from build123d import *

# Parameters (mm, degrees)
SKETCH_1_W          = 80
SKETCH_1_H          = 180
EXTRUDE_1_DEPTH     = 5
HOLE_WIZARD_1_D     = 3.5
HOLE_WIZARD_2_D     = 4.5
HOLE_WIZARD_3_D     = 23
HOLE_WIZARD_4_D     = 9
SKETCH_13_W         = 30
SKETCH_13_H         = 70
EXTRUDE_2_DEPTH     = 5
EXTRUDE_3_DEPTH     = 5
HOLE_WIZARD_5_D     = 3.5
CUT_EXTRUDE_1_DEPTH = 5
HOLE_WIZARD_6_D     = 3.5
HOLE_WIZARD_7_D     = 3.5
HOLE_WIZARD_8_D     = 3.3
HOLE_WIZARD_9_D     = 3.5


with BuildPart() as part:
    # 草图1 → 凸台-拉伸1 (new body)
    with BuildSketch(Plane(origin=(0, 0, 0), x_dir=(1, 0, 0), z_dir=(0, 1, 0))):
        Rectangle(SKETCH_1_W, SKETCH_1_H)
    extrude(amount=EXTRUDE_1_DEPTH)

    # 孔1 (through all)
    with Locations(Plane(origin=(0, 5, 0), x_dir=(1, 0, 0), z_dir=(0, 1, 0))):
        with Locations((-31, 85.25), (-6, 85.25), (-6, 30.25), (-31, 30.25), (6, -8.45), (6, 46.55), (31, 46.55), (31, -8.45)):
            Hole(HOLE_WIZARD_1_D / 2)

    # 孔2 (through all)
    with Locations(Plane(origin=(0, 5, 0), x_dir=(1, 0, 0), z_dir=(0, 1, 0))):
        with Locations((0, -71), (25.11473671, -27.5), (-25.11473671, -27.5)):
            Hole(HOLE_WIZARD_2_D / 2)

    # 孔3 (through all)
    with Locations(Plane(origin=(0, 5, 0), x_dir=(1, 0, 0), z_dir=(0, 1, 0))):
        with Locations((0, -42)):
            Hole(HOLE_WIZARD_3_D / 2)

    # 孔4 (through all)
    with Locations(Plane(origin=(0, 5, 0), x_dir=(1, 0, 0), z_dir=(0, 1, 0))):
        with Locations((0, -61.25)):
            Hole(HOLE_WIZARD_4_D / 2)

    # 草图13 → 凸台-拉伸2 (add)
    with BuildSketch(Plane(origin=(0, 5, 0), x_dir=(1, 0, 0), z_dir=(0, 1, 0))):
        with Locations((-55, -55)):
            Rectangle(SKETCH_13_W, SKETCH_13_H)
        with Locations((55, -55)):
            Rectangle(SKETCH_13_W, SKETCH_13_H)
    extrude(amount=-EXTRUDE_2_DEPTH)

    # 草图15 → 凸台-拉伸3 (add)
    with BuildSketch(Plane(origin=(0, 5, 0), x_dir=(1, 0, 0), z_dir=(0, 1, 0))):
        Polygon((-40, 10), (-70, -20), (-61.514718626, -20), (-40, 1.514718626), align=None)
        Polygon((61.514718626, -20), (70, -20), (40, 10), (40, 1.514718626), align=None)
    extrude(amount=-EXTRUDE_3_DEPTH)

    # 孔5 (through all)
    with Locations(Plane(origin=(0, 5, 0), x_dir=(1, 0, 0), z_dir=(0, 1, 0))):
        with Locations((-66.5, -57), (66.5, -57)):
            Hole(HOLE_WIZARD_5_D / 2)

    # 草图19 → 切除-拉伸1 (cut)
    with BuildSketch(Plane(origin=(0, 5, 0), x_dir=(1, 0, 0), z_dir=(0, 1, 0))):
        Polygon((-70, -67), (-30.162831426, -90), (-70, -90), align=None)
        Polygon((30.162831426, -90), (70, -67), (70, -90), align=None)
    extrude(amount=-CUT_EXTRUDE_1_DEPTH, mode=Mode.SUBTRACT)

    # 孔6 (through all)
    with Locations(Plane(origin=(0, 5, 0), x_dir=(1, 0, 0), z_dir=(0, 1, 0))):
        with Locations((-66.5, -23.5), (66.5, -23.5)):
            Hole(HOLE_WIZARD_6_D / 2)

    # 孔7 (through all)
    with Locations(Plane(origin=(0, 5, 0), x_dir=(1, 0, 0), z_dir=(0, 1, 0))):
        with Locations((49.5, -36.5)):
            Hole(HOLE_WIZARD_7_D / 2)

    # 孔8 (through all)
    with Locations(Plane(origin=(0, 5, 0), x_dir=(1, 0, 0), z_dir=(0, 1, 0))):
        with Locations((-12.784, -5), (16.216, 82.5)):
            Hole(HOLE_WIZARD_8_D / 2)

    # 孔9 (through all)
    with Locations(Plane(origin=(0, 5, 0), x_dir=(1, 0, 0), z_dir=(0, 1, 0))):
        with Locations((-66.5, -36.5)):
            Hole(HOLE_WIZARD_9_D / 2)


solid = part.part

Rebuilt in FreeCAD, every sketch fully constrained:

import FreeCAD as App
import Part
import Sketcher

V = App.Vector
Q = App.Units.Quantity

doc = App.newDocument("Part")
params = doc.addObject("Spreadsheet::Sheet", "Params")
for row, (alias, value) in enumerate([
    ("sketch1_width", "80 mm"),
    ("sketch1_height", "180 mm"),
    ("pad1_length", "5 mm"),
    ("sketch2_diameter", "3.5 mm"),
    ("hole_diameter", "3.5 mm"),
    ("sketch3_diameter", "4.5 mm"),
    ("hole2_diameter", "4.5 mm"),
    ("sketch4_diameter", "23 mm"),
    ("hole3_diameter", "23 mm"),
    ("sketch5_diameter", "9 mm"),
    ("hole4_diameter", "9 mm"),
    ("sketch6_width", "30 mm"),
    ("sketch6_height", "70 mm"),
    ("pad2_length", "5 mm"),
    ("pad3_length", "5 mm"),
    ("sketch8_diameter", "3.5 mm"),
    ("hole5_diameter", "3.5 mm"),
    ("sketch9_height", "23 mm"),
    ("pocket1_length", "5 mm"),
    ("sketch10_diameter", "3.5 mm"),
    ("hole6_diameter", "3.5 mm"),
    ("sketch11_diameter", "3.5 mm"),
    ("hole7_diameter", "3.5 mm"),
    ("sketch12_diameter", "3.3 mm"),
    ("hole8_diameter", "3.3 mm"),
    ("sketch13_diameter", "3.5 mm"),
    ("hole9_diameter", "3.5 mm"),
], start=1):
    params.set(f"A{row}", alias)
    params.set(f"B{row}", "=" + value)
    params.setAlias(f"B{row}", alias)

body = doc.addObject("PartDesign::Body", "Body")

sketch1 = body.newObject("Sketcher::SketchObject", "Sketch")
sketch1.AttachmentSupport = (doc.getObject("XZ_Plane"), [""])
sketch1.MapMode = "FlatFace"
sketch1.addGeometry([
    Part.LineSegment(V(-40, -90, 0), V(-40, 90, 0)),
    Part.LineSegment(V(-40, 90, 0), V(40, 90, 0)),
    Part.LineSegment(V(40, 90, 0), V(40, -90, 0)),
    Part.LineSegment(V(40, -90, 0), V(-40, -90, 0)),
], False)
sketch1.addConstraint([
    Sketcher.Constraint("Coincident", 0, 2, 1, 1),
    Sketcher.Constraint("Coincident", 1, 2, 2, 1),
    Sketcher.Constraint("Coincident", 2, 2, 3, 1),
    Sketcher.Constraint("Coincident", 3, 2, 0, 1),
    Sketcher.Constraint("Vertical", 0),
    Sketcher.Constraint("Horizontal", 1),
    Sketcher.Constraint("Vertical", 2),
    Sketcher.Constraint("Horizontal", 3),
    Sketcher.Constraint("Symmetric", 0, 2, 2, 2, -1, 1),
    Sketcher.Constraint("DistanceX", 1, 1, 1, 2, Q("80 mm")),
    Sketcher.Constraint("DistanceY", 0, 1, 0, 2, Q("180 mm")),
])
sketch1.setExpression("Constraints[9]", "Params.sketch1_width")
sketch1.setExpression("Constraints[10]", "Params.sketch1_height")
pad1 = body.newObject("PartDesign::Pad", "Pad")
pad1.Profile = sketch1
pad1.setExpression("Length", "Params.pad1_length")
pad1.Reversed = True

sketch2 = body.newObject("Sketcher::SketchObject", "Sketch001")
sketch2.AttachmentSupport = (doc.getObject("XZ_Plane"), [""])
sketch2.MapMode = "FlatFace"
sketch2.AttachmentOffset = App.Placement(V(0, 0, -5), App.Rotation())
sketch2.addGeometry([
    Part.Circle(V(-31, -85.2, 0), V(0, 0, 1), 1.8),
    Part.Circle(V(-6, -85.2, 0), V(0, 0, 1), 1.8),
    Part.Circle(V(-6, -30.2, 0), V(0, 0, 1), 1.8),
    Part.Circle(V(-31, -30.2, 0), V(0, 0, 1), 1.8),
    Part.Circle(V(6, 8.4, 0), V(0, 0, 1), 1.8),
    Part.Circle(V(6, -46.5, 0), V(0, 0, 1), 1.8),
    Part.Circle(V(31, -46.5, 0), V(0, 0, 1), 1.8),
    Part.Circle(V(31, 8.4, 0), V(0, 0, 1), 1.8),
], False)
sketch2.addConstraint([
    Sketcher.Constraint("Equal", 0, 1),
    Sketcher.Constraint("Equal", 1, 2),
    Sketcher.Constraint("Equal", 2, 3),
    Sketcher.Constraint("Equal", 3, 4),
    Sketcher.Constraint("Equal", 4, 5),
    Sketcher.Constraint("Equal", 5, 6),
    Sketcher.Constraint("Equal", 6, 7),
    Sketcher.Constraint("Horizontal", 0, 3, 1, 3),
    Sketcher.Constraint("Horizontal", 2, 3, 3, 3),
    Sketcher.Constraint("Horizontal", 5, 3, 6, 3),
    Sketcher.Constraint("Horizontal", 4, 3, 7, 3),
    Sketcher.Constraint("Vertical", 1, 3, 2, 3),
    Sketcher.Constraint("Vertical", 0, 3, 3, 3),
    Sketcher.Constraint("Vertical", 4, 3, 5, 3),
    Sketcher.Constraint("Vertical", 6, 3, 7, 3),
    Sketcher.Constraint("Diameter", 0, Q("3.5 mm")),
    Sketcher.Constraint("DistanceX", 0, 3, -1, 1, Q("31 mm")),
    Sketcher.Constraint("DistanceX", 1, 3, -1, 1, Q("6 mm")),
    Sketcher.Constraint("DistanceX", -1, 1, 4, 3, Q("6 mm")),
    Sketcher.Constraint("DistanceX", -1, 1, 6, 3, Q("31 mm")),
    Sketcher.Constraint("DistanceY", 1, 3, 2, 3, Q("55 mm")),
    Sketcher.Constraint("DistanceY", 5, 3, 4, 3, Q("55 mm")),
    Sketcher.Constraint("DistanceY", 2, 3, 4, 3, Q("38.7 mm")),
    Sketcher.Constraint("DistanceY", 0, 3, -1, 1, Q("85.25 mm")),
])
sketch2.setExpression("Constraints[15]", "Params.sketch2_diameter")
doc.recompute()
hole = body.newObject("PartDesign::Hole", "Hole")
hole.Profile = sketch2
hole.ThreadType = "None"
hole.setExpression("Diameter", "Params.hole_diameter")
hole.DepthType = "ThroughAll"
hole.Reversed = True

sketch3 = body.newObject("Sketcher::SketchObject", "Sketch002")
sketch3.AttachmentSupport = (doc.getObject("XZ_Plane"), [""])
sketch3.MapMode = "FlatFace"
sketch3.AttachmentOffset = App.Placement(V(0, 0, -5), App.Rotation())
sketch3.addGeometry([
    Part.Circle(V(0, 71, 0), V(0, 0, 1), 2.2),
    Part.Circle(V(25.1, 27.5, 0), V(0, 0, 1), 2.2),
    Part.Circle(V(-25.1, 27.5, 0), V(0, 0, 1), 2.2),
], False)
sketch3.addConstraint([
    Sketcher.Constraint("Equal", 0, 1),
    Sketcher.Constraint("Equal", 1, 2),
    Sketcher.Constraint("Symmetric", 1, 3, 2, 3, -2),
    Sketcher.Constraint("PointOnObject", 0, 3, -2),
    Sketcher.Constraint("Diameter", 0, Q("4.5 mm")),
    Sketcher.Constraint("DistanceY", -1, 1, 0, 3, Q("71 mm")),
    Sketcher.Constraint("DistanceY", -1, 1, 1, 3, Q("27.5 mm")),
    Sketcher.Constraint("DistanceX", -1, 1, 1, 3, Q("25.114737 mm")),
])
sketch3.setExpression("Constraints[4]", "Params.sketch3_diameter")
doc.recompute()
hole2 = body.newObject("PartDesign::Hole", "Hole001")
hole2.Profile = sketch3
hole2.ThreadType = "None"
hole2.setExpression("Diameter", "Params.hole2_diameter")
hole2.DepthType = "ThroughAll"
hole2.Reversed = True

sketch4 = body.newObject("Sketcher::SketchObject", "Sketch003")
sketch4.AttachmentSupport = (doc.getObject("XZ_Plane"), [""])
sketch4.MapMode = "FlatFace"
sketch4.AttachmentOffset = App.Placement(V(0, 0, -5), App.Rotation())
sketch4.addGeometry(Part.Circle(V(0, 42, 0), V(0, 0, 1), 12), False)
sketch4.addConstraint([
    Sketcher.Constraint("PointOnObject", 0, 3, -2),
    Sketcher.Constraint("Diameter", 0, Q("23 mm")),
    Sketcher.Constraint("DistanceY", -1, 1, 0, 3, Q("42 mm")),
])
sketch4.setExpression("Constraints[1]", "Params.sketch4_diameter")
doc.recompute()
hole3 = body.newObject("PartDesign::Hole", "Hole002")
hole3.Profile = sketch4
hole3.ThreadType = "None"
hole3.setExpression("Diameter", "Params.hole3_diameter")
hole3.DepthType = "ThroughAll"
hole3.Reversed = True

sketch5 = body.newObject("Sketcher::SketchObject", "Sketch004")
sketch5.AttachmentSupport = (doc.getObject("XZ_Plane"), [""])
sketch5.MapMode = "FlatFace"
sketch5.AttachmentOffset = App.Placement(V(0, 0, -5), App.Rotation())
sketch5.addGeometry(Part.Circle(V(0, 61.2, 0), V(0, 0, 1), 4.5), False)
sketch5.addConstraint([
    Sketcher.Constraint("PointOnObject", 0, 3, -2),
    Sketcher.Constraint("Diameter", 0, Q("9 mm")),
    Sketcher.Constraint("DistanceY", -1, 1, 0, 3, Q("61.25 mm")),
])
sketch5.setExpression("Constraints[1]", "Params.sketch5_diameter")
doc.recompute()
hole4 = body.newObject("PartDesign::Hole", "Hole003")
hole4.Profile = sketch5
hole4.ThreadType = "None"
hole4.setExpression("Diameter", "Params.hole4_diameter")
hole4.DepthType = "ThroughAll"
hole4.Reversed = True

sketch6 = body.newObject("Sketcher::SketchObject", "Sketch005")
sketch6.AttachmentSupport = (doc.getObject("XZ_Plane"), [""])
sketch6.MapMode = "FlatFace"
sketch6.AttachmentOffset = App.Placement(V(0, 0, -5), App.Rotation())
sketch6.addGeometry([
    Part.LineSegment(V(-70, 20, 0), V(-70, 90, 0)),
    Part.LineSegment(V(-70, 90, 0), V(-40, 90, 0)),
    Part.LineSegment(V(-40, 90, 0), V(-40, 20, 0)),
    Part.LineSegment(V(-40, 20, 0), V(-70, 20, 0)),
    Part.LineSegment(V(40, 20, 0), V(40, 90, 0)),
    Part.LineSegment(V(40, 90, 0), V(70, 90, 0)),
    Part.LineSegment(V(70, 90, 0), V(70, 20, 0)),
    Part.LineSegment(V(70, 20, 0), V(40, 20, 0)),
], False)
sketch6.addConstraint([
    Sketcher.Constraint("Coincident", 0, 2, 1, 1),
    Sketcher.Constraint("Coincident", 1, 2, 2, 1),
    Sketcher.Constraint("Coincident", 2, 2, 3, 1),
    Sketcher.Constraint("Coincident", 3, 2, 0, 1),
    Sketcher.Constraint("Coincident", 4, 2, 5, 1),
    Sketcher.Constraint("Coincident", 5, 2, 6, 1),
    Sketcher.Constraint("Coincident", 6, 2, 7, 1),
    Sketcher.Constraint("Coincident", 7, 2, 4, 1),
    Sketcher.Constraint("Vertical", 0),
    Sketcher.Constraint("Horizontal", 1),
    Sketcher.Constraint("Vertical", 2),
    Sketcher.Constraint("Horizontal", 3),
    Sketcher.Constraint("Vertical", 4),
    Sketcher.Constraint("Horizontal", 5),
    Sketcher.Constraint("Vertical", 6),
    Sketcher.Constraint("Horizontal", 7),
    Sketcher.Constraint("Symmetric", 1, 2, 4, 2, -2),
    Sketcher.Constraint("Symmetric", 3, 2, 6, 2, -2),
    Sketcher.Constraint("DistanceX", 1, 1, 1, 2, Q("30 mm")),
    Sketcher.Constraint("DistanceY", 0, 1, 0, 2, Q("70 mm")),
    Sketcher.Constraint("DistanceX", 0, 2, -1, 1, Q("70 mm")),
    Sketcher.Constraint("DistanceY", -1, 1, 0, 2, Q("90 mm")),
])
sketch6.setExpression("Constraints[18]", "Params.sketch6_width")
sketch6.setExpression("Constraints[19]", "Params.sketch6_height")
pad2 = body.newObject("PartDesign::Pad", "Pad001")
pad2.Profile = sketch6
pad2.setExpression("Length", "Params.pad2_length")

sketch7 = body.newObject("Sketcher::SketchObject", "Sketch006")
sketch7.AttachmentSupport = (doc.getObject("XZ_Plane"), [""])
sketch7.MapMode = "FlatFace"
sketch7.AttachmentOffset = App.Placement(V(0, 0, -5), App.Rotation())
sketch7.addGeometry([
    Part.LineSegment(V(-40, -10, 0), V(-70, 20, 0)),
    Part.LineSegment(V(-70, 20, 0), V(-62, 20, 0)),
    Part.LineSegment(V(-62, 20, 0), V(-40, -2, 0)),
    Part.LineSegment(V(-40, -2, 0), V(-40, -10, 0)),
    Part.LineSegment(V(62, 20, 0), V(70, 20, 0)),
    Part.LineSegment(V(70, 20, 0), V(40, -10, 0)),
    Part.LineSegment(V(40, -10, 0), V(40, -2, 0)),
    Part.LineSegment(V(40, -2, 0), V(62, 20, 0)),
], False)
sketch7.addConstraint([
    Sketcher.Constraint("Coincident", 0, 2, 1, 1),
    Sketcher.Constraint("Coincident", 1, 2, 2, 1),
    Sketcher.Constraint("Coincident", 2, 2, 3, 1),
    Sketcher.Constraint("Coincident", 3, 2, 0, 1),
    Sketcher.Constraint("Coincident", 4, 2, 5, 1),
    Sketcher.Constraint("Coincident", 5, 2, 6, 1),
    Sketcher.Constraint("Coincident", 6, 2, 7, 1),
    Sketcher.Constraint("Coincident", 7, 2, 4, 1),
    Sketcher.Constraint("Horizontal", 1),
    Sketcher.Constraint("Vertical", 3),
    Sketcher.Constraint("Horizontal", 4),
    Sketcher.Constraint("Vertical", 6),
    Sketcher.Constraint("Symmetric", 0, 2, 4, 2, -2),
    Sketcher.Constraint("Symmetric", 3, 2, 5, 2, -2),
    Sketcher.Constraint("Parallel", 0, 2),
    Sketcher.Constraint("Perpendicular", 2, 5),
    Sketcher.Constraint("Parallel", 5, 7),
    Sketcher.Constraint("Horizontal", 2, 2, 6, 2),
    Sketcher.Constraint("DistanceX", 0, 2, -1, 1, Q("70 mm")),
    Sketcher.Constraint("DistanceY", -1, 1, 0, 2, Q("20 mm")),
    Sketcher.Constraint("DistanceX", 2, 2, -1, 1, Q("40 mm")),
    Sketcher.Constraint("DistanceX", 1, 1, 1, 2, Q("8.485281 mm")),
])
pad3 = body.newObject("PartDesign::Pad", "Pad002")
pad3.Profile = sketch7
pad3.setExpression("Length", "Params.pad3_length")

sketch8 = body.newObject("Sketcher::SketchObject", "Sketch007")
sketch8.AttachmentSupport = (doc.getObject("XZ_Plane"), [""])
sketch8.MapMode = "FlatFace"
sketch8.AttachmentOffset = App.Placement(V(0, 0, -5), App.Rotation())
sketch8.addGeometry([
    Part.Circle(V(-66.5, 57, 0), V(0, 0, 1), 1.8),
    Part.Circle(V(66.5, 57, 0), V(0, 0, 1), 1.8),
], False)
sketch8.addConstraint([
    Sketcher.Constraint("Equal", 0, 1),
    Sketcher.Constraint("Symmetric", 0, 3, 1, 3, -2),
    Sketcher.Constraint("Diameter", 0, Q("3.5 mm")),
    Sketcher.Constraint("DistanceY", -1, 1, 0, 3, Q("57 mm")),
    Sketcher.Constraint("DistanceX", 0, 3, 1, 3, Q("133 mm")),
])
sketch8.setExpression("Constraints[2]", "Params.sketch8_diameter")
doc.recompute()
hole5 = body.newObject("PartDesign::Hole", "Hole004")
hole5.Profile = sketch8
hole5.ThreadType = "None"
hole5.setExpression("Diameter", "Params.hole5_diameter")
hole5.DepthType = "ThroughAll"
hole5.Reversed = True

sketch9 = body.newObject("Sketcher::SketchObject", "Sketch008")
sketch9.AttachmentSupport = (doc.getObject("XZ_Plane"), [""])
sketch9.MapMode = "FlatFace"
sketch9.AttachmentOffset = App.Placement(V(0, 0, -5), App.Rotation())
sketch9.addGeometry([
    Part.LineSegment(V(-30, 90, 0), V(-70, 67, 0)),
    Part.LineSegment(V(-70, 67, 0), V(-70, 90, 0)),
    Part.LineSegment(V(-70, 90, 0), V(-30, 90, 0)),
    Part.LineSegment(V(70, 67, 0), V(30, 90, 0)),
    Part.LineSegment(V(30, 90, 0), V(70, 90, 0)),
    Part.LineSegment(V(70, 90, 0), V(70, 67, 0)),
], False)
sketch9.addConstraint([
    Sketcher.Constraint("Coincident", 0, 2, 1, 1),
    Sketcher.Constraint("Coincident", 1, 2, 2, 1),
    Sketcher.Constraint("Coincident", 2, 2, 0, 1),
    Sketcher.Constraint("Coincident", 3, 2, 4, 1),
    Sketcher.Constraint("Coincident", 4, 2, 5, 1),
    Sketcher.Constraint("Coincident", 5, 2, 3, 1),
    Sketcher.Constraint("Vertical", 1),
    Sketcher.Constraint("Horizontal", 2),
    Sketcher.Constraint("Horizontal", 4),
    Sketcher.Constraint("Vertical", 5),
    Sketcher.Constraint("Symmetric", 2, 2, 3, 2, -2),
    Sketcher.Constraint("Symmetric", 0, 2, 5, 2, -2),
    Sketcher.Constraint("DistanceY", 1, 1, 1, 2, Q("23 mm")),
    Sketcher.Constraint("Angle", 0, Q("-150 deg")),
    Sketcher.Constraint("DistanceX", 0, 2, -1, 1, Q("70 mm")),
    Sketcher.Constraint("DistanceY", -1, 1, 0, 2, Q("67 mm")),
])
sketch9.setExpression("Constraints[12]", "Params.sketch9_height")
pocket1 = body.newObject("PartDesign::Pocket", "Pocket")
pocket1.Profile = sketch9
pocket1.setExpression("Length", "Params.pocket1_length")
pocket1.Reversed = True

sketch10 = body.newObject("Sketcher::SketchObject", "Sketch009")
sketch10.AttachmentSupport = (doc.getObject("XZ_Plane"), [""])
sketch10.MapMode = "FlatFace"
sketch10.AttachmentOffset = App.Placement(V(0, 0, -5), App.Rotation())
sketch10.addGeometry([
    Part.Circle(V(-66.5, 23.5, 0), V(0, 0, 1), 1.8),
    Part.Circle(V(66.5, 23.5, 0), V(0, 0, 1), 1.8),
], False)
sketch10.addConstraint([
    Sketcher.Constraint("Equal", 0, 1),
    Sketcher.Constraint("Symmetric", 0, 3, 1, 3, -2),
    Sketcher.Constraint("Diameter", 0, Q("3.5 mm")),
    Sketcher.Constraint("DistanceX", 0, 3, 1, 3, Q("133 mm")),
    Sketcher.Constraint("DistanceY", -1, 1, 0, 3, Q("23.5 mm")),
])
sketch10.setExpression("Constraints[2]", "Params.sketch10_diameter")
doc.recompute()
hole6 = body.newObject("PartDesign::Hole", "Hole005")
hole6.Profile = sketch10
hole6.ThreadType = "None"
hole6.setExpression("Diameter", "Params.hole6_diameter")
hole6.DepthType = "ThroughAll"
hole6.Reversed = True

sketch11 = body.newObject("Sketcher::SketchObject", "Sketch010")
sketch11.AttachmentSupport = (doc.getObject("XZ_Plane"), [""])
sketch11.MapMode = "FlatFace"
sketch11.AttachmentOffset = App.Placement(V(0, 0, -5), App.Rotation())
sketch11.addGeometry(Part.Circle(V(49.5, 36.5, 0), V(0, 0, 1), 1.8), False)
sketch11.addConstraint([
    Sketcher.Constraint("Diameter", 0, Q("3.5 mm")),
    Sketcher.Constraint("DistanceX", -1, 1, 0, 3, Q("49.5 mm")),
    Sketcher.Constraint("DistanceY", -1, 1, 0, 3, Q("36.5 mm")),
])
sketch11.setExpression("Constraints[0]", "Params.sketch11_diameter")
doc.recompute()
hole7 = body.newObject("PartDesign::Hole", "Hole006")
hole7.Profile = sketch11
hole7.ThreadType = "None"
hole7.setExpression("Diameter", "Params.hole7_diameter")
hole7.DepthType = "ThroughAll"
hole7.Reversed = True

sketch12 = body.newObject("Sketcher::SketchObject", "Sketch011")
sketch12.AttachmentSupport = (doc.getObject("XZ_Plane"), [""])
sketch12.MapMode = "FlatFace"
sketch12.AttachmentOffset = App.Placement(V(0, 0, -5), App.Rotation())
sketch12.addGeometry([
    Part.Circle(V(-12.8, 5, 0), V(0, 0, 1), 1.6),
    Part.Circle(V(16.2, -82.5, 0), V(0, 0, 1), 1.6),
], False)
sketch12.addConstraint([
    Sketcher.Constraint("Equal", 0, 1),
    Sketcher.Constraint("Diameter", 0, Q("3.3 mm")),
    Sketcher.Constraint("DistanceY", -1, 1, 0, 3, Q("5 mm")),
    Sketcher.Constraint("DistanceX", 0, 3, 1, 3, Q("29 mm")),
    Sketcher.Constraint("DistanceY", 1, 3, -1, 1, Q("82.5 mm")),
    Sketcher.Constraint("DistanceX", 0, 3, -1, 1, Q("12.784 mm")),
])
sketch12.setExpression("Constraints[1]", "Params.sketch12_diameter")
doc.recompute()
hole8 = body.newObject("PartDesign::Hole", "Hole007")
hole8.Profile = sketch12
hole8.ThreadType = "None"
hole8.setExpression("Diameter", "Params.hole8_diameter")
hole8.DepthType = "ThroughAll"
hole8.Reversed = True

sketch13 = body.newObject("Sketcher::SketchObject", "Sketch012")
sketch13.AttachmentSupport = (doc.getObject("XZ_Plane"), [""])
sketch13.MapMode = "FlatFace"
sketch13.AttachmentOffset = App.Placement(V(0, 0, -5), App.Rotation())
sketch13.addGeometry(Part.Circle(V(-66.5, 36.5, 0), V(0, 0, 1), 1.8), False)
sketch13.addConstraint([
    Sketcher.Constraint("Diameter", 0, Q("3.5 mm")),
    Sketcher.Constraint("DistanceX", 0, 3, -1, 1, Q("66.5 mm")),
    Sketcher.Constraint("DistanceY", -1, 1, 0, 3, Q("36.5 mm")),
])
sketch13.setExpression("Constraints[0]", "Params.sketch13_diameter")
doc.recompute()
hole9 = body.newObject("PartDesign::Hole", "Hole008")
hole9.Profile = sketch13
hole9.ThreadType = "None"
hole9.setExpression("Diameter", "Params.hole9_diameter")
hole9.DepthType = "ThroughAll"
hole9.Reversed = True

doc.recompute()
